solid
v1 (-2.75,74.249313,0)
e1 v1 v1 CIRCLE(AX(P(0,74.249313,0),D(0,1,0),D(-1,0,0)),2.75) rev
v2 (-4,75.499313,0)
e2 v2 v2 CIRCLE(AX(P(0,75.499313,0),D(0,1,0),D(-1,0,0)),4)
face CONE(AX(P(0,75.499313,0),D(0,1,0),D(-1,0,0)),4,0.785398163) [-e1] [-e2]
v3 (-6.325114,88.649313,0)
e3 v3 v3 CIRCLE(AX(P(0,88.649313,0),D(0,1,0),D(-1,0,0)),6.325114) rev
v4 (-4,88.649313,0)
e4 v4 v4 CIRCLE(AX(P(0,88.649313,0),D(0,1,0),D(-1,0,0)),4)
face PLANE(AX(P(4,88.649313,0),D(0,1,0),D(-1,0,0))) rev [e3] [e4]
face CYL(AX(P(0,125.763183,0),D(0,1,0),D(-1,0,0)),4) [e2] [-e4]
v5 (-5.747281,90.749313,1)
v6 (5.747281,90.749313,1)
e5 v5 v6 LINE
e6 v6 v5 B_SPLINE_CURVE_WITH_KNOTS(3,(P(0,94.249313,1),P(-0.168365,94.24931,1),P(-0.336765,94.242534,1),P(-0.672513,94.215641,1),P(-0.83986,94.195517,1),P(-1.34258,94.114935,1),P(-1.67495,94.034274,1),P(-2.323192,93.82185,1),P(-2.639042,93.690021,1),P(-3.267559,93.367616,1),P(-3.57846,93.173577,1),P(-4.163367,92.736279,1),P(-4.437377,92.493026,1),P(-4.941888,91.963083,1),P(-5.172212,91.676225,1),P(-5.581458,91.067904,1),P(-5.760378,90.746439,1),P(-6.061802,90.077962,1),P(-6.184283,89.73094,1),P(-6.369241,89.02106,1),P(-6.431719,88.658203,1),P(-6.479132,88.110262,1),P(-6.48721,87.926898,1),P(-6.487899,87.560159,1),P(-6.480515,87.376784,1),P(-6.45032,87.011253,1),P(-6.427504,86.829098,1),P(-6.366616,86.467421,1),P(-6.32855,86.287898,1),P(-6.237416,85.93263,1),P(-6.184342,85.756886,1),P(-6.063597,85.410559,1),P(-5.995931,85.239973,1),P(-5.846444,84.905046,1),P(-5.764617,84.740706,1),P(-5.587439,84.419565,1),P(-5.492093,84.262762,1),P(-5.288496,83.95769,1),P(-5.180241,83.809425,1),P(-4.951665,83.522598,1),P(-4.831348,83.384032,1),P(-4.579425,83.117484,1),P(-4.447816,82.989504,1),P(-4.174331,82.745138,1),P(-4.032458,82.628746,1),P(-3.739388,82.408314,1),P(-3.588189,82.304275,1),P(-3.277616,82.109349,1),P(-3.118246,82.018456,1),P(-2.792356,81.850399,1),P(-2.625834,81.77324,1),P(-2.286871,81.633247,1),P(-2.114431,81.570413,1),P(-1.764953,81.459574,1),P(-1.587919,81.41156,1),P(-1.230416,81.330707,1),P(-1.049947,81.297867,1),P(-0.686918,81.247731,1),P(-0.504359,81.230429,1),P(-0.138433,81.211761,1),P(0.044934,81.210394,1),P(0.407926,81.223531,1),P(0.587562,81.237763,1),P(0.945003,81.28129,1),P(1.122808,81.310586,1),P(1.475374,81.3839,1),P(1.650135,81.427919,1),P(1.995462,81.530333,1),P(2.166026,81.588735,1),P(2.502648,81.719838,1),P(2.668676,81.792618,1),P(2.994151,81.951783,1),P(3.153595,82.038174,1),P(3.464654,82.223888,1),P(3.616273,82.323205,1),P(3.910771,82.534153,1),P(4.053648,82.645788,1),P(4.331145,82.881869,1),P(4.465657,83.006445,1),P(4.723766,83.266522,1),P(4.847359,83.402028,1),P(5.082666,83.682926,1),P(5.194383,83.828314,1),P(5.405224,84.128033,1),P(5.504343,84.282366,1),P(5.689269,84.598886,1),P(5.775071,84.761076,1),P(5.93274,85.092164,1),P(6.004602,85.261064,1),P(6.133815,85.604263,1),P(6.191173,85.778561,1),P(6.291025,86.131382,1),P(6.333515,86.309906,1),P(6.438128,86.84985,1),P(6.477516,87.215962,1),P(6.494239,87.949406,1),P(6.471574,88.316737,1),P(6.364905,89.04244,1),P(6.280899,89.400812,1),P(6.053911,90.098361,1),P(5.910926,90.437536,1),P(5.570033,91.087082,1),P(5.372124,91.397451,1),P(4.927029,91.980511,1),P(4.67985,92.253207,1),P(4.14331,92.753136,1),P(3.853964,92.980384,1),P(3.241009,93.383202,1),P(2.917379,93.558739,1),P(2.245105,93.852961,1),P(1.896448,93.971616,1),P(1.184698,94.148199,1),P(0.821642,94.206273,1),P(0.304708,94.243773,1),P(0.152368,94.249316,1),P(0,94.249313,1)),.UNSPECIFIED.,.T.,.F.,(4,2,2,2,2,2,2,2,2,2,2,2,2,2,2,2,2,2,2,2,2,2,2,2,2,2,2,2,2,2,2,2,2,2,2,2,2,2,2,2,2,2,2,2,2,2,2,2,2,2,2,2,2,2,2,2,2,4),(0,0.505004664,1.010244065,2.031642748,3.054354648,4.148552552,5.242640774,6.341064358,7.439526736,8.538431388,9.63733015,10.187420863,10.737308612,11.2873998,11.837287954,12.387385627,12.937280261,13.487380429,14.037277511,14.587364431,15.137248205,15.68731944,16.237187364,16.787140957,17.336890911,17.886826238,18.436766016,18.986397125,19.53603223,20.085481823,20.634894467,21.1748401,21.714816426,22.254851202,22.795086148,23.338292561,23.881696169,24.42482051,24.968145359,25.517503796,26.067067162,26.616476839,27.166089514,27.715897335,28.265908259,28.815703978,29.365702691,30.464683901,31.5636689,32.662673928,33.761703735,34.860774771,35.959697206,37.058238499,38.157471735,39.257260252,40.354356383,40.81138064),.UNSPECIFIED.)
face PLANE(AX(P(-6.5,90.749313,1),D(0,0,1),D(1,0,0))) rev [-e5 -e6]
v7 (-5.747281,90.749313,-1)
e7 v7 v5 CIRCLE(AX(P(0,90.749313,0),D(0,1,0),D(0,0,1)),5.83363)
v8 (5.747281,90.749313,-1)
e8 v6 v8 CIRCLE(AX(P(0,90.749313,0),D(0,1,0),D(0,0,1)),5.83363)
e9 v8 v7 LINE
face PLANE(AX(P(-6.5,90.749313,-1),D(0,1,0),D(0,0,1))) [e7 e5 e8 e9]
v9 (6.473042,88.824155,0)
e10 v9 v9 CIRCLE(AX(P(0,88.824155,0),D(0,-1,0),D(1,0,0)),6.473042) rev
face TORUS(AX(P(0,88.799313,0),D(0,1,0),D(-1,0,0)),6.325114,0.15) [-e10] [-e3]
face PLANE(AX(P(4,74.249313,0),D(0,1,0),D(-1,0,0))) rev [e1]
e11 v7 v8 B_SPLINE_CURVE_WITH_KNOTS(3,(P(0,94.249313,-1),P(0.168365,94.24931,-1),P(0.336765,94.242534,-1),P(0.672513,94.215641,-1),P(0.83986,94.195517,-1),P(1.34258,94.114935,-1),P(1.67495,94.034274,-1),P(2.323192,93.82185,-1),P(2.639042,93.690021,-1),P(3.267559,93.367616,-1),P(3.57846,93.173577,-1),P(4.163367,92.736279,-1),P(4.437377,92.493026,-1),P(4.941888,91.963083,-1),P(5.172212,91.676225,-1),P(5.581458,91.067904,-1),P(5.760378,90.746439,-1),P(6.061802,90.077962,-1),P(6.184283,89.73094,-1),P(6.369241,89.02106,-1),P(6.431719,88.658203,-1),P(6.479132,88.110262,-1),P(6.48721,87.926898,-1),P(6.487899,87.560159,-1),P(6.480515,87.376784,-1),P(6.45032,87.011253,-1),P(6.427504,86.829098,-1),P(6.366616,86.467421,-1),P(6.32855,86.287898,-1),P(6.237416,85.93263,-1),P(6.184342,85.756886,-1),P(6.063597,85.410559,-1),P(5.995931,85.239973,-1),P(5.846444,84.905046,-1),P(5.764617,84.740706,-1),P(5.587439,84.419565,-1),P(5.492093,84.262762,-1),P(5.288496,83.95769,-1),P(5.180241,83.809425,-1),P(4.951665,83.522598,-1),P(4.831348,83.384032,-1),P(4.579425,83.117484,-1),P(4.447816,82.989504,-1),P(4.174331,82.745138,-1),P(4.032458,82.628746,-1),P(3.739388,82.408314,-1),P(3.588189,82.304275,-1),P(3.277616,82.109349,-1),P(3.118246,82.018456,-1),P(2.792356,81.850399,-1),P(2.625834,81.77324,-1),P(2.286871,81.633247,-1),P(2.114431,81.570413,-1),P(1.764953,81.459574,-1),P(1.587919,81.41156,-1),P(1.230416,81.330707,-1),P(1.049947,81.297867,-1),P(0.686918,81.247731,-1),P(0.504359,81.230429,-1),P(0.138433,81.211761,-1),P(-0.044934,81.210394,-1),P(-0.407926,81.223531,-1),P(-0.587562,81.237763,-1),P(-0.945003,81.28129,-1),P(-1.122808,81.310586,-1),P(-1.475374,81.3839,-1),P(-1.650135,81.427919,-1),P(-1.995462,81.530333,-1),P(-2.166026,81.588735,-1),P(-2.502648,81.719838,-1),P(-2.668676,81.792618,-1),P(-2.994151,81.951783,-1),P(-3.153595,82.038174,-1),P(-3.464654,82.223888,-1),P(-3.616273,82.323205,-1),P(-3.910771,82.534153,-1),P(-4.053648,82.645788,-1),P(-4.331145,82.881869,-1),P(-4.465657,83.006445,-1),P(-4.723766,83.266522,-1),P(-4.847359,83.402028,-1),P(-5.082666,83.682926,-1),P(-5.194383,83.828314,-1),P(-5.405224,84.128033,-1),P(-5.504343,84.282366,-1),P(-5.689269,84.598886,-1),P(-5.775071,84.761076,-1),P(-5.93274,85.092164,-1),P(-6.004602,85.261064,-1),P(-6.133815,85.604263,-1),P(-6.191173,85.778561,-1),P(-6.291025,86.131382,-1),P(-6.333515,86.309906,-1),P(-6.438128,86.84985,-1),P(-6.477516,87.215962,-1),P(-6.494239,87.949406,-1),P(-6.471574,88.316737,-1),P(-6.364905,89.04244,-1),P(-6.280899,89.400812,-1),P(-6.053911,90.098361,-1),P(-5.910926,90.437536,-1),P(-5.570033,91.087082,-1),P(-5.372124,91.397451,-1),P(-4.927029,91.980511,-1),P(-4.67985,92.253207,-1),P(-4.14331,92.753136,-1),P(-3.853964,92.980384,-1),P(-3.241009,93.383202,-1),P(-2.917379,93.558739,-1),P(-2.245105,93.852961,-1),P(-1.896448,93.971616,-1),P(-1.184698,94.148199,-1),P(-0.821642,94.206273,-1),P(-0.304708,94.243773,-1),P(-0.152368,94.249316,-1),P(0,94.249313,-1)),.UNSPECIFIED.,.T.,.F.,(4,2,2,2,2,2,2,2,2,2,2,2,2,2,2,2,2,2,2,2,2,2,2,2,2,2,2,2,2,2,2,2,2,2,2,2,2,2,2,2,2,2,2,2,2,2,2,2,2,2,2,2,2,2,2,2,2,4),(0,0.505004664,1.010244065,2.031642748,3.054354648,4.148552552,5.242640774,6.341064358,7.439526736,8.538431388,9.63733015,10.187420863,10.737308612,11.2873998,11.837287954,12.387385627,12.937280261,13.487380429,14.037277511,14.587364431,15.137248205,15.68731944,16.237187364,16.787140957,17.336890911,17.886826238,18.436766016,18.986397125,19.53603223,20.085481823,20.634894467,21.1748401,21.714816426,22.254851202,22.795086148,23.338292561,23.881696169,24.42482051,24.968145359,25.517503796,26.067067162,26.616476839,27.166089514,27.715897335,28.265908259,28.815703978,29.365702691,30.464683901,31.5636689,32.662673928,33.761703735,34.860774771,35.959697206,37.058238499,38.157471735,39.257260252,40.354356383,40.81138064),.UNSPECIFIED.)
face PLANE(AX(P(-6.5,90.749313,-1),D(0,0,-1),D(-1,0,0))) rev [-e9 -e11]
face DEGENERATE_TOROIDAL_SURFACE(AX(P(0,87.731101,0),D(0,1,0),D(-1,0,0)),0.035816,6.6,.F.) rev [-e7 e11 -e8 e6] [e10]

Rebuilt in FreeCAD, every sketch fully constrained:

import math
import FreeCAD as App
import Part
import Sketcher


def edges_at(feature, points):
    """Names of the edges that pass closest to the given points."""
    edges = feature.Shape.Edges
    near = lambda p: min(range(len(edges)), key=lambda i: edges[i].distToShape(Part.Vertex(*p))[0])
    return sorted({f"Edge{near(p) + 1}" for p in points})


def add_polygon(sketch, points):
    """Adds a closed chain of lines whose ends are joined by coincident constraints."""
    first, n = sketch.GeometryCount, len(points)
    for a, b in zip(points, points[1:] + points[:1]):
        sketch.addGeometry(Part.LineSegment(App.Vector(*a, 0), App.Vector(*b, 0)), False)
    for i in range(n):
        sketch.addConstraint(Sketcher.Constraint("Coincident", first + i, 2, first + (i + 1) % n, 1))

doc = App.newDocument("Part")
body = doc.addObject("PartDesign::Body", "Body")

# Sketch on XY plane
sketch1 = body.newObject("Sketcher::SketchObject", "Sketch")
sketch1.AttachmentSupport = (doc.getObject("XY_Plane"), [""])
sketch1.MapMode = "FlatFace"
sketch1.addGeometry([
    Part.LineSegment(App.Vector(4, 88.6, 0), App.Vector(6.5, 88.6, 0)),  # 0
    Part.ArcOfCircle(Part.Circle(App.Vector(0, 87.7, 0), App.Vector(0, 0, 1), 6.6), math.radians(8), math.radians(81)),  # 1
    Part.LineSegment(App.Vector(1, 94.2, 0), App.Vector(0, 94.2, 0)),  # 2
    Part.LineSegment(App.Vector(0, 94.2, 0), App.Vector(0, 74.2, 0)),  # 3
    Part.LineSegment(App.Vector(0, 74.2, 0), App.Vector(4, 74.2, 0)),  # 4
    Part.LineSegment(App.Vector(4, 74.2, 0), App.Vector(4, 88.6, 0)),  # 5
], False)
sketch1.addConstraint([
    Sketcher.Constraint("Coincident", 0, 2, 1, 1),
    Sketcher.Constraint("Coincident", 1, 2, 2, 1),
    Sketcher.Constraint("Coincident", 2, 2, 3, 1),
    Sketcher.Constraint("Coincident", 3, 2, 4, 1),
    Sketcher.Constraint("Coincident", 4, 2, 5, 1),
    Sketcher.Constraint("Coincident", 5, 2, 0, 1),
    Sketcher.Constraint("Horizontal", 0),
    Sketcher.Constraint("Horizontal", 2),
    Sketcher.Constraint("Vertical", 3),
    Sketcher.Constraint("Horizontal", 4),
    Sketcher.Constraint("Vertical", 5),
    Sketcher.Constraint("PointOnObject", 2, 2, -2),
    Sketcher.Constraint("Radius", 1, 6.6),
    Sketcher.Constraint("DistanceX", 2, 2, 2, 1, 1.0),
    Sketcher.Constraint("DistanceX", 4, 1, 4, 2, 4.0),
    Sketcher.Constraint("DistanceY", 3, 2, 3, 1, 20.0),
    Sketcher.Constraint("DistanceX", 0, 1, 0, 2, 2.5),
    Sketcher.Constraint("DistanceY", 5, 1, 5, 2, 14.4),
    Sketcher.Constraint("DistanceY", -1, 1, 1, 3, 87.731101),
])
revolution = body.newObject("PartDesign::Revolution", "Revolution")
revolution.Profile = sketch1
revolution.ReferenceAxis = (sketch1, ["V_Axis"])
revolution.Angle = 360

# Sketch on XZ plane
sketch2 = body.newObject("Sketcher::SketchObject", "Sketch001")
sketch2.AttachmentSupport = (doc.getObject("XZ_Plane"), [""])
sketch2.MapMode = "FlatFace"
sketch2.AttachmentOffset = App.Placement(App.Vector(0, 0, -94.249313), App.Rotation())
add_polygon(sketch2, [(6.5, 1), (6.5, -1), (-6.5, -1), (-6.5, 1)])  # lines 0-3
sketch2.addConstraint([
    Sketcher.Constraint("Vertical", 0),
    Sketcher.Constraint("Horizontal", 1),
    Sketcher.Constraint("Vertical", 2),
    Sketcher.Constraint("Horizontal", 3),
    Sketcher.Constraint("Symmetric", 0, 2, 2, 2, -1, 1),
    Sketcher.Constraint("DistanceX", 1, 2, 1, 1, 13.0),
    Sketcher.Constraint("DistanceY", 0, 2, 0, 1, 2.0),
])
pocket1 = body.newObject("PartDesign::Pocket", "Pocket")
pocket1.Profile = sketch2
pocket1.Length = 3.5
pocket1.Reversed = True
doc.recompute()

fillet = body.newObject("PartDesign::Fillet", "Fillet")
fillet.Base = (pocket1, edges_at(pocket1, [(6.5, 88.649, 0)]))
fillet.Radius = 0.15
doc.recompute()

chamfer = body.newObject("PartDesign::Chamfer", "Chamfer")
chamfer.Base = (fillet, edges_at(fillet, [(4, 74.249, 0)]))
chamfer.Size = 1.25

doc.recompute()
